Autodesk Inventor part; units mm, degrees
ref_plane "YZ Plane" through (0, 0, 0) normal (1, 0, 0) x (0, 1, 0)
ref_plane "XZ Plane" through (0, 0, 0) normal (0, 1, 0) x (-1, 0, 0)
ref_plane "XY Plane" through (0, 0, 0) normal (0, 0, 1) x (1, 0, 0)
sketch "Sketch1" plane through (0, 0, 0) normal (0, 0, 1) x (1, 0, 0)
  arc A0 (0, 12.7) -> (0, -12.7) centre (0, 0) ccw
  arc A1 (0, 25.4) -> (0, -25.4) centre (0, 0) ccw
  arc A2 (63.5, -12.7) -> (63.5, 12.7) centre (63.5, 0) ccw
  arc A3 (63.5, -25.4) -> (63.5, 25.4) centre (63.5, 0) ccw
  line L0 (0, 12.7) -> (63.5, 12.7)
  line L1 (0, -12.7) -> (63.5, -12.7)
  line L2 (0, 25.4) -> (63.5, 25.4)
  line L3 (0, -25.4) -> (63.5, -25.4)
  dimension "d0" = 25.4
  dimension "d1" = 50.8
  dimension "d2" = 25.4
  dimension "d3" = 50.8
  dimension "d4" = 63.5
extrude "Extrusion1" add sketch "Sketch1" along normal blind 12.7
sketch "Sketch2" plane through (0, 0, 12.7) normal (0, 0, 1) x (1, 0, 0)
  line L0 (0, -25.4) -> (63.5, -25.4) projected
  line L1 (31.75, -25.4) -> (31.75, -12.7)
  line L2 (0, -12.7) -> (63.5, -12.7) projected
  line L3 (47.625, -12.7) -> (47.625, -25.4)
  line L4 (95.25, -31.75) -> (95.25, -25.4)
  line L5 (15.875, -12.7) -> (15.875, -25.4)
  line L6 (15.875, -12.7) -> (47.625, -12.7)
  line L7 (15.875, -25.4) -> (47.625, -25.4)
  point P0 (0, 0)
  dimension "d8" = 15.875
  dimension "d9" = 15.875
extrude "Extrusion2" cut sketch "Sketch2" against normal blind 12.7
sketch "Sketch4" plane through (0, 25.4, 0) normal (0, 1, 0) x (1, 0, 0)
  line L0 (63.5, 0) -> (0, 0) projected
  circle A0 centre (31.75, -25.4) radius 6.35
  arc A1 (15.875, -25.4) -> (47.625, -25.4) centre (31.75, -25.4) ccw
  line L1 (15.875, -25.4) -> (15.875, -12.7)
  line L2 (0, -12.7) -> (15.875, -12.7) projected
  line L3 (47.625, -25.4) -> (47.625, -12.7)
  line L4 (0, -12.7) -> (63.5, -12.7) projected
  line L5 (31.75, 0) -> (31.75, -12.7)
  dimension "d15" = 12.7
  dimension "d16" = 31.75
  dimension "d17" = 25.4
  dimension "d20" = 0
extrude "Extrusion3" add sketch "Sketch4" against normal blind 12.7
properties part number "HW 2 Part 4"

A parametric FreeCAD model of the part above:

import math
import FreeCAD as App
import Part
import Sketcher
from FreeCAD import Vector
Q = App.Units.Quantity


def add_polygon(sketch, points):
    """Adds a closed chain of lines whose ends are joined by coincident constraints."""
    first, n = sketch.GeometryCount, len(points)
    for a, b in zip(points, points[1:] + points[:1]):
        sketch.addGeometry(Part.LineSegment(App.Vector(*a, 0), App.Vector(*b, 0)), False)
    for i in range(n):
        sketch.addConstraint(Sketcher.Constraint("Coincident", first + i, 2, first + (i + 1) % n, 1))

doc = App.newDocument("Part")
body = doc.addObject("PartDesign::Body", "Body")

# Sketch on XY plane
sketch1 = doc.addObject("Sketcher::SketchObject", "Sketch")
body.addObject(sketch1)
sketch1.AttachmentSupport = (doc.XY_Plane, [""])
sketch1.MapMode = "FlatFace"
sketch1.addGeometry(Part.LineSegment(Vector(63.5, 25.4, 0), Vector(0, 25.4, 0)), False)
sketch1.addGeometry(Part.ArcOfCircle(Part.Circle(Vector(0, 0, 0), Vector(0, 0, 1), 25.4), math.radians(90), math.radians(270)), False)
sketch1.addGeometry(Part.LineSegment(Vector(0, -25.4, 0), Vector(63.5, -25.4, 0)), False)
sketch1.addGeometry(Part.ArcOfCircle(Part.Circle(Vector(63.5, 0, 0), Vector(0, 0, 1), 25.4), math.radians(-90), math.radians(90)), False)
sketch1.addGeometry(Part.ArcOfCircle(Part.Circle(Vector(0, 0, 0), Vector(0, 0, 1), 12.7), math.radians(90), math.radians(270)), False)
sketch1.addGeometry(Part.LineSegment(Vector(0, 12.7, 0), Vector(63.5, 12.7, 0)), False)
sketch1.addGeometry(Part.ArcOfCircle(Part.Circle(Vector(63.5, 0, 0), Vector(0, 0, 1), 12.7), math.radians(-90), math.radians(90)), False)
sketch1.addGeometry(Part.LineSegment(Vector(63.5, -12.7, 0), Vector(0, -12.7, 0)), False)
sketch1.addConstraint(Sketcher.Constraint("Tangent", 0, 2, 1, 1))
sketch1.addConstraint(Sketcher.Constraint("Tangent", 1, 2, 2, 1))
sketch1.addConstraint(Sketcher.Constraint("Tangent", 2, 2, 3, 1))
sketch1.addConstraint(Sketcher.Constraint("Tangent", 3, 2, 0, 1))
sketch1.addConstraint(Sketcher.Constraint("Tangent", 4, 1, 5, 1))
sketch1.addConstraint(Sketcher.Constraint("Tangent", 5, 2, 6, 2))
sketch1.addConstraint(Sketcher.Constraint("Tangent", 6, 1, 7, 1))
sketch1.addConstraint(Sketcher.Constraint("Tangent", 7, 2, 4, 2))
sketch1.addConstraint(Sketcher.Constraint("Horizontal", 0))
sketch1.addConstraint(Sketcher.Constraint("Horizontal", 2))
sketch1.addConstraint(Sketcher.Constraint("Horizontal", 5))
sketch1.addConstraint(Sketcher.Constraint("Horizontal", 7))
sketch1.addConstraint(Sketcher.Constraint("Coincident", 1, 3, -1, 1))
sketch1.addConstraint(Sketcher.Constraint("Coincident", 4, 3, -1, 1))
sketch1.addConstraint(Sketcher.Constraint("Vertical", 6, 3, 2, 2))
sketch1.addConstraint(Sketcher.Constraint("Radius", 1, Q("1 in")))
sketch1.addConstraint(Sketcher.Constraint("Radius", 4, Q("0.5 in")))
sketch1.addConstraint(Sketcher.Constraint("DistanceX", 0, 2, 0, 1, Q("2.5 in")))
pad1 = doc.addObject("PartDesign::Pad", "Pad")
body.addObject(pad1)
pad1.Profile = sketch1
pad1.Length = Q("0.5 in")

# Sketch on XY plane
sketch2 = doc.addObject("Sketcher::SketchObject", "Sketch001")
body.addObject(sketch2)
sketch2.AttachmentSupport = (doc.XY_Plane, [""])
sketch2.MapMode = "FlatFace"
sketch2.AttachmentOffset = App.Placement(Vector(0, 0, 0.5 * 25.4), App.Rotation())
add_polygon(sketch2, [(15.875, -12.7), (15.875, -25.4), (47.625, -25.4), (47.625, -12.7)])  # lines 0-3
sketch2.addConstraint(Sketcher.Constraint("Vertical", 0))
sketch2.addConstraint(Sketcher.Constraint("Horizontal", 1))
sketch2.addConstraint(Sketcher.Constraint("Vertical", 2))
sketch2.addConstraint(Sketcher.Constraint("Horizontal", 3))
sketch2.addConstraint(Sketcher.Constraint("DistanceY", 0, 2, 0, 1, Q("0.5 in")))
sketch2.addConstraint(Sketcher.Constraint("DistanceX", -1, 1, 0, 2, Q("0.625 in")))
sketch2.addConstraint(Sketcher.Constraint("DistanceY", 0, 2, -1, 1, Q("1 in")))
sketch2.addConstraint(Sketcher.Constraint("DistanceX", 1, 1, 1, 2, Q("1.25 in")))
pocket1 = doc.addObject("PartDesign::Pocket", "Pocket")
body.addObject(pocket1)
pocket1.Profile = sketch2
pocket1.Length = Q("0.5 in")

# Sketch on XZ plane
sketch3 = doc.addObject("Sketcher::SketchObject", "Sketch002")
body.addObject(sketch3)
sketch3.AttachmentSupport = (doc.XZ_Plane, [""])
sketch3.MapMode = "FlatFace"
sketch3.AttachmentOffset = App.Placement(Vector(0, 0, -1 * 25.4), App.Rotation())
sketch3.addGeometry(Part.LineSegment(Vector(15.875, 12.7, 0), Vector(15.875, 25.4, 0)), False)
sketch3.addGeometry(Part.ArcOfCircle(Part.Circle(Vector(31.75, 25.4, 0), Vector(0, 0, 1), 15.875), math.radians(0), math.radians(180)), False)
sketch3.addGeometry(Part.LineSegment(Vector(47.625, 25.4, 0), Vector(47.625, 12.7, 0)), False)
sketch3.addGeometry(Part.LineSegment(Vector(47.625, 12.7, 0), Vector(15.875, 12.7, 0)), False)
sketch3.addGeometry(Part.Circle(Vector(31.75, 25.4, 0), Vector(0, 0, 1), 6.35), False)
sketch3.addConstraint(Sketcher.Constraint("Tangent", 0, 2, 1, 2))
sketch3.addConstraint(Sketcher.Constraint("Tangent", 1, 1, 2, 1))
sketch3.addConstraint(Sketcher.Constraint("Coincident", 2, 2, 3, 1))
sketch3.addConstraint(Sketcher.Constraint("Coincident", 3, 2, 0, 1))
sketch3.addConstraint(Sketcher.Constraint("Vertical", 0))
sketch3.addConstraint(Sketcher.Constraint("Vertical", 2))
sketch3.addConstraint(Sketcher.Constraint("Horizontal", 3))
sketch3.addConstraint(Sketcher.Constraint("Coincident", 4, 3, 1, 3))
sketch3.addConstraint(Sketcher.Constraint("Diameter", 4, Q("0.5 in")))
sketch3.addConstraint(Sketcher.Constraint("DistanceY", 0, 1, 0, 2, Q("0.5 in")))
sketch3.addConstraint(Sketcher.Constraint("DistanceY", -1, 1, 1, 3, Q("1 in")))
sketch3.addConstraint(Sketcher.Constraint("Radius", 1, Q("0.625 in")))
sketch3.addConstraint(Sketcher.Constraint("DistanceX", -1, 1, 1, 3, Q("1.25 in")))
pad2 = doc.addObject("PartDesign::Pad", "Pad001")
body.addObject(pad2)
pad2.Profile = sketch3
pad2.Length = Q("0.5 in")

doc.recompute()
